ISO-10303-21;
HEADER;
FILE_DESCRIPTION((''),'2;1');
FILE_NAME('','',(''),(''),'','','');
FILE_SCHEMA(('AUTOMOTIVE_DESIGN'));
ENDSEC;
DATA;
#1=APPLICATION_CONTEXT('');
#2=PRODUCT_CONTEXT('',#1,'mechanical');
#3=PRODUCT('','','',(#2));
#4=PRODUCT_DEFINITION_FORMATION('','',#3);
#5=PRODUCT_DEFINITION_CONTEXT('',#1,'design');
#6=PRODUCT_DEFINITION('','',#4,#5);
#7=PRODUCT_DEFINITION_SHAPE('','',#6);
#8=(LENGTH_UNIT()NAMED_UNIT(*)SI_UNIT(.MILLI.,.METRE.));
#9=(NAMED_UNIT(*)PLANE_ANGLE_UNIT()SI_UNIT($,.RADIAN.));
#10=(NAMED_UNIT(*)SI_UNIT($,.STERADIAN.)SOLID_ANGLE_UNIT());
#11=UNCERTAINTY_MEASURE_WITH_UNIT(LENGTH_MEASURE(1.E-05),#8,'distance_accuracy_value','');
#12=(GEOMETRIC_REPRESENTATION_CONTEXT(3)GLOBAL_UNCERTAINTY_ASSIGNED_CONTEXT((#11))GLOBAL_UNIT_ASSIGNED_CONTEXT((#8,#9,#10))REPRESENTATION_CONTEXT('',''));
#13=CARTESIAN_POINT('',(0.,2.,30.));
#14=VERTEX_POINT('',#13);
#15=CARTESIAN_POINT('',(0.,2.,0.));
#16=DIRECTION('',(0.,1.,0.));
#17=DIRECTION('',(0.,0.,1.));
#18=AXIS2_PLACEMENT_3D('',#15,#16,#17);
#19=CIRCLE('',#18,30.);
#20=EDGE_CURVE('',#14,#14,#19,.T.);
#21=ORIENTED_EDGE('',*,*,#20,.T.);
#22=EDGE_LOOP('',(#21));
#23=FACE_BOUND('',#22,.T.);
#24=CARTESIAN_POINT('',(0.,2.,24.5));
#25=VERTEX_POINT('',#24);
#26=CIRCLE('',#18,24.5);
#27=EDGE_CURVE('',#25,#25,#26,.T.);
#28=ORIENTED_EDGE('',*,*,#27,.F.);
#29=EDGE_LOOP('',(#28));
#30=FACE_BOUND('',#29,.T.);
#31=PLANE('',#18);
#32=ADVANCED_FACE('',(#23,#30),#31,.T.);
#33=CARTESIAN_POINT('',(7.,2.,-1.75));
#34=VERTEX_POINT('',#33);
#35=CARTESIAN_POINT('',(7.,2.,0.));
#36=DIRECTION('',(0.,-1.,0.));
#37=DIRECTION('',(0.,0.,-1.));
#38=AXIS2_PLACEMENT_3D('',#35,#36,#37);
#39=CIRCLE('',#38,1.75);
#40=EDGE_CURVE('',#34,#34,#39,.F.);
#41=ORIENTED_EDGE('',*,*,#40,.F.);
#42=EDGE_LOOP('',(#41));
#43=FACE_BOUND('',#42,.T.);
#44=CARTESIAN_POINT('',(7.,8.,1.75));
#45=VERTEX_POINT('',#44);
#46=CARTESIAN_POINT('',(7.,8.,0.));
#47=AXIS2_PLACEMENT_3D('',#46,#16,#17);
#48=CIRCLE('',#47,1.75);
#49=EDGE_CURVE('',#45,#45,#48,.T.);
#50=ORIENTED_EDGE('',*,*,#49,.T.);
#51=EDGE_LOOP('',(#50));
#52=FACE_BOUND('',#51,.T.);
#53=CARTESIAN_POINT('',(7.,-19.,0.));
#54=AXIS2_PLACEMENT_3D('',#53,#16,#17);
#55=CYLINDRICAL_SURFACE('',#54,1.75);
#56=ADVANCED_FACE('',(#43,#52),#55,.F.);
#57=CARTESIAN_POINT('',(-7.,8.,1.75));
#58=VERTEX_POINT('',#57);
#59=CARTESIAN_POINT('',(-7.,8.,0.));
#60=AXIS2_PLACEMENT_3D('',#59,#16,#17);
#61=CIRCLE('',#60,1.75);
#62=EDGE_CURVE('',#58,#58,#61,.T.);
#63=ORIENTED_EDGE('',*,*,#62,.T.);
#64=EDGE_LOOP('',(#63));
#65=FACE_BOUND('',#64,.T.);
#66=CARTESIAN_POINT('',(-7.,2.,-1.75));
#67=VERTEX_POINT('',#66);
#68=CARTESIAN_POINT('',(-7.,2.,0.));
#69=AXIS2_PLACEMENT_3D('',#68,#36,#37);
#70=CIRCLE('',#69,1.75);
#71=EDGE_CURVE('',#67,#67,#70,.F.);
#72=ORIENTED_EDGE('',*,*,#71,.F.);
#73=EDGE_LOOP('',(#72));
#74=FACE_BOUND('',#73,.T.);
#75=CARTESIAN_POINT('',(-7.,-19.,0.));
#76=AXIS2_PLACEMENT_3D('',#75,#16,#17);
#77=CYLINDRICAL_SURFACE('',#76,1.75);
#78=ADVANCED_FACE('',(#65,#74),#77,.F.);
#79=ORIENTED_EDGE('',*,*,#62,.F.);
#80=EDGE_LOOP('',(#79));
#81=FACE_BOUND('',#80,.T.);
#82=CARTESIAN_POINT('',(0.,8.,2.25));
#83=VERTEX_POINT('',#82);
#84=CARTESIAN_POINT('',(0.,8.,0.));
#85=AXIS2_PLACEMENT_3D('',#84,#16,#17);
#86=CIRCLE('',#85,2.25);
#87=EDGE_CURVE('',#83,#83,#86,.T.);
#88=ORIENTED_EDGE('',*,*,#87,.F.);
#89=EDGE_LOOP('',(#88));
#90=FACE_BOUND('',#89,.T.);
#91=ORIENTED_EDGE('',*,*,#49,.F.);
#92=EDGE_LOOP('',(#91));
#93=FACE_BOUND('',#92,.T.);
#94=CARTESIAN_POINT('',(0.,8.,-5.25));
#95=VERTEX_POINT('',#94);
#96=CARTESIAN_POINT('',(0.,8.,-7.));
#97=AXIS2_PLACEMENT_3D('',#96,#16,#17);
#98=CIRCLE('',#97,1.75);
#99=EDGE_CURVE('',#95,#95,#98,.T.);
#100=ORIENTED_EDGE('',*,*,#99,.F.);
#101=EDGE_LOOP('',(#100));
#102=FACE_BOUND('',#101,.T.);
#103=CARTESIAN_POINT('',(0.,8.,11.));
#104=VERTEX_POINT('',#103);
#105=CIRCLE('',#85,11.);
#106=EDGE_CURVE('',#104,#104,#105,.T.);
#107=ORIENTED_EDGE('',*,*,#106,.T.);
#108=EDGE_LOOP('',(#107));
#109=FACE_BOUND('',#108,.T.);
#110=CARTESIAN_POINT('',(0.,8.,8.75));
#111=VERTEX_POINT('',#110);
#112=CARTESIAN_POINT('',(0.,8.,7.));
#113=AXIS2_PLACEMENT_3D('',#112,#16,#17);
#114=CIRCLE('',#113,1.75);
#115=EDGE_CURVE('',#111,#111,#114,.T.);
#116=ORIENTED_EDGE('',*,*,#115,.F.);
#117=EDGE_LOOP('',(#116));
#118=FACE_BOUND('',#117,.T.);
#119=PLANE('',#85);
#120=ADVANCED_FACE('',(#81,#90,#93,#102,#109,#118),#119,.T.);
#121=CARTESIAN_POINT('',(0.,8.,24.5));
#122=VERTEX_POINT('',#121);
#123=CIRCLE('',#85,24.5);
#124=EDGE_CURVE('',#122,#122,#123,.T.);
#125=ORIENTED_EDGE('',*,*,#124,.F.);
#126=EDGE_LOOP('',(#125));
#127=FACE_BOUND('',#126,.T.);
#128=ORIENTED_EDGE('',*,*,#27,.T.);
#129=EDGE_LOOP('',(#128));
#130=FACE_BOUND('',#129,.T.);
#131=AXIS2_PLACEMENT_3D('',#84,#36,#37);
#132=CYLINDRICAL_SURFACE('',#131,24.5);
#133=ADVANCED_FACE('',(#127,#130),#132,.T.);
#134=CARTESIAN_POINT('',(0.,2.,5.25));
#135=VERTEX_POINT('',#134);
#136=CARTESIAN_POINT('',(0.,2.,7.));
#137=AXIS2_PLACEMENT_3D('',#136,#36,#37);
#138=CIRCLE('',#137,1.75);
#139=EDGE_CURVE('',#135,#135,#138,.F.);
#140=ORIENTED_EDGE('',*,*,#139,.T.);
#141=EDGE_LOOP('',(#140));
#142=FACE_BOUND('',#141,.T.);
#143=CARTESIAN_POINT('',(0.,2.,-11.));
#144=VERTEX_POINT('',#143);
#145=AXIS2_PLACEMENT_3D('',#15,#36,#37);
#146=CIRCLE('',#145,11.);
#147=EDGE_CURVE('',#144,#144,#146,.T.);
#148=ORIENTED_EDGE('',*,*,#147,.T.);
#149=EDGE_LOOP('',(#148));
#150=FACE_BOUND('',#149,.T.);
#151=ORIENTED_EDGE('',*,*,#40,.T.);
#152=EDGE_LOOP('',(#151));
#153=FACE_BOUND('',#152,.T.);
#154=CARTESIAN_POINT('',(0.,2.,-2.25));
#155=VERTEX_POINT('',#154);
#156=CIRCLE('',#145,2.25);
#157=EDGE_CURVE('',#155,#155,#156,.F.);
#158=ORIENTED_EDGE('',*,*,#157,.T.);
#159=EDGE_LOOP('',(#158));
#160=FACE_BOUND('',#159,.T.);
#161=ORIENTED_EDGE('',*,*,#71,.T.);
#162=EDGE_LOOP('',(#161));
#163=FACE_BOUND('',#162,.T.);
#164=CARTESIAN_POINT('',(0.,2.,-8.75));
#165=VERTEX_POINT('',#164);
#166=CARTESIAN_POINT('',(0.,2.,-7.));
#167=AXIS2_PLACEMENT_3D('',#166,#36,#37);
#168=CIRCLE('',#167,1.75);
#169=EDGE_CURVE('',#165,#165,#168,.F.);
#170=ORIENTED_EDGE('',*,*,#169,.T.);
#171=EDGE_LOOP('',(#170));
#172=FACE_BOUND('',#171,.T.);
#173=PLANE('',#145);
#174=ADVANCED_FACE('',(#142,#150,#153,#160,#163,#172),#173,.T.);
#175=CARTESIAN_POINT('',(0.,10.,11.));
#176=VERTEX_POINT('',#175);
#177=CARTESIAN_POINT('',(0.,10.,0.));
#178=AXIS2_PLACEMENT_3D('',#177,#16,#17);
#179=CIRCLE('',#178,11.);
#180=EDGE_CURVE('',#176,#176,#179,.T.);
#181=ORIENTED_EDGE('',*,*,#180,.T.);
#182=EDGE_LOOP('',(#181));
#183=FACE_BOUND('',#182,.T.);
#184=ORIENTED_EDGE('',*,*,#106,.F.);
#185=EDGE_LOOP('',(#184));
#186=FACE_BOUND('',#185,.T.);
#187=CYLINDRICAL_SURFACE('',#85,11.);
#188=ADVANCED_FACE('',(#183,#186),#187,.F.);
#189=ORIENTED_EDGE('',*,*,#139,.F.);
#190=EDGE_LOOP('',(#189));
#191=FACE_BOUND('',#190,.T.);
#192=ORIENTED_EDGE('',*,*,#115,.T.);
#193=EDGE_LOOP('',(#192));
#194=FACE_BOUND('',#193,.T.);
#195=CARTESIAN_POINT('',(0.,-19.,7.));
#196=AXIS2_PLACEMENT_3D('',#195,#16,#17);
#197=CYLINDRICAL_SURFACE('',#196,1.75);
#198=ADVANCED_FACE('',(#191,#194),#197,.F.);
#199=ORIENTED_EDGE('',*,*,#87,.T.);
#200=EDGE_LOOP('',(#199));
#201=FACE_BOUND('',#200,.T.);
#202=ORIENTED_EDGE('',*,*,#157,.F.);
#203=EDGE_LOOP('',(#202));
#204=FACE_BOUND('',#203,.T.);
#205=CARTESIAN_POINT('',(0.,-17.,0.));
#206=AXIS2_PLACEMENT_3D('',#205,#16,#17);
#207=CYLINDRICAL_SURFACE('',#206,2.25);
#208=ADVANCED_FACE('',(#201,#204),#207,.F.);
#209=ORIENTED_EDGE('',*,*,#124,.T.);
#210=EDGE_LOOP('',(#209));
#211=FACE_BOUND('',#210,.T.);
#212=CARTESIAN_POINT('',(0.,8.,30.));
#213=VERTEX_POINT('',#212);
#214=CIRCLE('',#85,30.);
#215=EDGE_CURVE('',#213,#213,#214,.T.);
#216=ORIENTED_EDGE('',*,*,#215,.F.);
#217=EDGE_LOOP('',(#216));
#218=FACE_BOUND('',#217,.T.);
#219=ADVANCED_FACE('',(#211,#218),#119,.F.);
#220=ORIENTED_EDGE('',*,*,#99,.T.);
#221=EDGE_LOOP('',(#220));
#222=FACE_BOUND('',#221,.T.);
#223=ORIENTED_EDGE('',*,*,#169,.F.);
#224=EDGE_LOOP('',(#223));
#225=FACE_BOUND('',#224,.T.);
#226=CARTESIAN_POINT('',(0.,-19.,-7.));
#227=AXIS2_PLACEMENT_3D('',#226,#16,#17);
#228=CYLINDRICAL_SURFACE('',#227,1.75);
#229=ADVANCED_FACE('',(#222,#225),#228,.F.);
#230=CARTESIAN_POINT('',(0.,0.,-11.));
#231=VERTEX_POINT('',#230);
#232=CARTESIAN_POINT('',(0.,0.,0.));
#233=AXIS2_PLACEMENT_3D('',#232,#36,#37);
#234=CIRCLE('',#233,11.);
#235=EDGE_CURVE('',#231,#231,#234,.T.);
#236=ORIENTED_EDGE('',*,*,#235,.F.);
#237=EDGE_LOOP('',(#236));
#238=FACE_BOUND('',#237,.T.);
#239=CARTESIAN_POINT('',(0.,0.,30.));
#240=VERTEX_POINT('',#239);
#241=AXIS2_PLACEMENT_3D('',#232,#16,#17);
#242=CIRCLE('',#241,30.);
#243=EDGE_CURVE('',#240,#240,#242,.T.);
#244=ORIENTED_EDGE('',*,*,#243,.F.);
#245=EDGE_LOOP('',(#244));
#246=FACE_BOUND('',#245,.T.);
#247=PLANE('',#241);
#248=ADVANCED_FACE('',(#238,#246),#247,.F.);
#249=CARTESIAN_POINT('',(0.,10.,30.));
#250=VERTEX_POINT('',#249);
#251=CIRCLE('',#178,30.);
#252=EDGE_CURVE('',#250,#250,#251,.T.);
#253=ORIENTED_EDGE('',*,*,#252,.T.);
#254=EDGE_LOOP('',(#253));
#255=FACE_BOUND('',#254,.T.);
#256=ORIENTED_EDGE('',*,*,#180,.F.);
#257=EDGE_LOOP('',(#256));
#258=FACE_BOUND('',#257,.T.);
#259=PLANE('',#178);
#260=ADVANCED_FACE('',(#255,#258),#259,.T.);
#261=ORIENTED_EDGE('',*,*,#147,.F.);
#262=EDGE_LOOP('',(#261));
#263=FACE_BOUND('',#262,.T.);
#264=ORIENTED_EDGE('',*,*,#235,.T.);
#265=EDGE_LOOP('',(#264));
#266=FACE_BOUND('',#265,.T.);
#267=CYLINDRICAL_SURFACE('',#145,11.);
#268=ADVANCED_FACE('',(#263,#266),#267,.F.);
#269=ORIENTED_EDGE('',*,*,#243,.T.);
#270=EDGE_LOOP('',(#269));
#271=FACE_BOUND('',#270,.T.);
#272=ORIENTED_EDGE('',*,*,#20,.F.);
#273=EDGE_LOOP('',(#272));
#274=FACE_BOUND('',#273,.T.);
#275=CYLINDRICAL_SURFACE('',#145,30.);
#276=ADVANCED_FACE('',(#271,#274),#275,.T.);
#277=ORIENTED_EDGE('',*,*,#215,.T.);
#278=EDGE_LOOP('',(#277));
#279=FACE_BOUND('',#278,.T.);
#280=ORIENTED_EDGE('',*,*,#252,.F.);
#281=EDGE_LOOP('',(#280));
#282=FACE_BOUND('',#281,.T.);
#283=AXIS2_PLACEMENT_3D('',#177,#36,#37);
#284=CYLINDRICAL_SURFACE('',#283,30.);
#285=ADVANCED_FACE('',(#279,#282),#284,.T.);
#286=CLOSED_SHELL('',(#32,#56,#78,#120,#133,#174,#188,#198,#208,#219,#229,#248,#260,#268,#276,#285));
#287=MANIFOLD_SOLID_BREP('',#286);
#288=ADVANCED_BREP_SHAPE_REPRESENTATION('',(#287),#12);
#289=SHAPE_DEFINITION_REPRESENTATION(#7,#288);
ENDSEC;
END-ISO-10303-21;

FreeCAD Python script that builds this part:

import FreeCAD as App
import Part
import Sketcher

V = App.Vector

doc = App.newDocument("Part")
params = doc.addObject("Spreadsheet::Sheet", "Params")
for row, (alias, value) in enumerate([
    ("sketch1_diameter", "60 mm"),
    ("pad1_length", "2 mm"),
    ("sketch2_diameter", "49 mm"),
    ("pad2_length", "6 mm"),
    ("sketch3_diameter", "60 mm"),
    ("pad3_length", "2 mm"),
    ("sketch4_diameter", "22 mm"),
    ("sketch4_diameter2", "4.5 mm"),
    ("pocket1_length", "2 mm"),
    ("sketch5_diameter", "4.5 mm"),
    ("pocket2_length", "27 mm"),
    ("sketch6_diameter", "3.5 mm"),
    ("pocket3_length", "27 mm"),
    ("sketch7_diameter", "22 mm"),
    ("pocket4_length", "2 mm"),
], start=1):
    params.set(f"A{row}", alias)
    params.set(f"B{row}", "=" + value)
    params.setAlias(f"B{row}", alias)

body = doc.addObject("PartDesign::Body", "Body")

sketch1 = doc.addObject("Sketcher::SketchObject", "Sketch")
body.addObject(sketch1)
sketch1.AttachmentSupport = (doc.XZ_Plane, [""])
sketch1.MapMode = "FlatFace"
sketch1.addGeometry(Part.Circle(V(0, 0, 0), V(0, 0, 1), 30), False)
sketch1.addConstraint([
    Sketcher.Constraint("Coincident", 0, 3, -1, 1),
    Sketcher.Constraint("Diameter", 0, 60.0),
])
sketch1.setExpression("Constraints[1]", "Params.sketch1_diameter")
pad1 = doc.addObject("PartDesign::Pad", "Pad")
body.addObject(pad1)
pad1.Profile = sketch1
pad1.setExpression("Length", "Params.pad1_length")
pad1.Reversed = True

sketch2 = doc.addObject("Sketcher::SketchObject", "Sketch001")
body.addObject(sketch2)
sketch2.AttachmentSupport = (doc.XZ_Plane, [""])
sketch2.MapMode = "FlatFace"
sketch2.AttachmentOffset = App.Placement(V(0, 0, -2), App.Rotation())
sketch2.addGeometry(Part.Circle(V(0, 0, 0), V(0, 0, 1), 24), False)
sketch2.addConstraint([
    Sketcher.Constraint("Coincident", 0, 3, -1, 1),
    Sketcher.Constraint("Diameter", 0, 49.0),
])
sketch2.setExpression("Constraints[1]", "Params.sketch2_diameter")
pad2 = doc.addObject("PartDesign::Pad", "Pad001")
body.addObject(pad2)
pad2.Profile = sketch2
pad2.setExpression("Length", "Params.pad2_length")
pad2.Reversed = True

sketch3 = doc.addObject("Sketcher::SketchObject", "Sketch002")
body.addObject(sketch3)
sketch3.AttachmentSupport = (doc.XZ_Plane, [""])
sketch3.MapMode = "FlatFace"
sketch3.AttachmentOffset = App.Placement(V(0, 0, -8), App.Rotation())
sketch3.addGeometry(Part.Circle(V(0, 0, 0), V(0, 0, 1), 30), False)
sketch3.addConstraint([
    Sketcher.Constraint("Coincident", 0, 3, -1, 1),
    Sketcher.Constraint("Diameter", 0, 60.0),
])
sketch3.setExpression("Constraints[1]", "Params.sketch3_diameter")
pad3 = doc.addObject("PartDesign::Pad", "Pad002")
body.addObject(pad3)
pad3.Profile = sketch3
pad3.setExpression("Length", "Params.pad3_length")
pad3.Reversed = True

sketch4 = doc.addObject("Sketcher::SketchObject", "Sketch003")
body.addObject(sketch4)
sketch4.AttachmentSupport = (doc.XZ_Plane, [""])
sketch4.MapMode = "FlatFace"
sketch4.AttachmentOffset = App.Placement(V(0, 0, -10), App.Rotation())
sketch4.addGeometry([
    Part.Circle(V(0, 0, 0), V(0, 0, 1), 11),
    Part.Circle(V(0, 0, 0), V(0, 0, 1), 2.2),
], False)
sketch4.addConstraint([
    Sketcher.Constraint("Coincident", 0, 3, -1, 1),
    Sketcher.Constraint("Coincident", 1, 3, -1, 1),
    Sketcher.Constraint("Diameter", 0, 22.0),
    Sketcher.Constraint("Diameter", 1, 4.5),
])
sketch4.setExpression("Constraints[2]", "Params.sketch4_diameter")
sketch4.setExpression("Constraints[3]", "Params.sketch4_diameter2")
pocket1 = doc.addObject("PartDesign::Pocket", "Pocket")
body.addObject(pocket1)
pocket1.Profile = sketch4
pocket1.setExpression("Length", "Params.pocket1_length")
pocket1.Reversed = True

sketch5 = doc.addObject("Sketcher::SketchObject", "Sketch004")
body.addObject(sketch5)
sketch5.AttachmentSupport = (doc.XZ_Plane, [""])
sketch5.MapMode = "FlatFace"
sketch5.AttachmentOffset = App.Placement(V(0, 0, -10), App.Rotation())
sketch5.addGeometry(Part.Circle(V(0, 0, 0), V(0, 0, 1), 2.2), False)
sketch5.addConstraint([
    Sketcher.Constraint("Coincident", 0, 3, -1, 1),
    Sketcher.Constraint("Diameter", 0, 4.5),
])
sketch5.setExpression("Constraints[1]", "Params.sketch5_diameter")
pocket2 = doc.addObject("PartDesign::Pocket", "Pocket001")
body.addObject(pocket2)
pocket2.Profile = sketch5
pocket2.setExpression("Length", "Params.pocket2_length")
pocket2.Reversed = True

sketch6 = doc.addObject("Sketcher::SketchObject", "Sketch005")
body.addObject(sketch6)
sketch6.AttachmentSupport = (doc.XZ_Plane, [""])
sketch6.MapMode = "FlatFace"
sketch6.AttachmentOffset = App.Placement(V(0, 0, -8), App.Rotation())
sketch6.addGeometry([
    Part.Circle(V(0, -7, 0), V(0, 0, 1), 1.8),
    Part.Circle(V(7, 0, 0), V(0, 0, 1), 1.8),
    Part.Circle(V(0, 7, 0), V(0, 0, 1), 1.8),
    Part.Circle(V(-7, 0, 0), V(0, 0, 1), 1.8),
], False)
sketch6.addConstraint([
    Sketcher.Constraint("Equal", 0, 1),
    Sketcher.Constraint("Equal", 1, 2),
    Sketcher.Constraint("Equal", 2, 3),
    Sketcher.Constraint("Symmetric", 0, 3, 2, 3, -1, 1),
    Sketcher.Constraint("Symmetric", 1, 3, 3, 3, -1, 1),
    Sketcher.Constraint("PointOnObject", 0, 3, -2),
    Sketcher.Constraint("PointOnObject", 1, 3, -1),
    Sketcher.Constraint("Diameter", 0, 3.5),
    Sketcher.Constraint("DistanceY", 0, 3, -1, 1, 7.0),
    Sketcher.Constraint("DistanceX", -1, 1, 1, 3, 7.0),
])
sketch6.setExpression("Constraints[7]", "Params.sketch6_diameter")
pocket3 = doc.addObject("PartDesign::Pocket", "Pocket002")
body.addObject(pocket3)
pocket3.Profile = sketch6
pocket3.setExpression("Length", "Params.pocket3_length")
pocket3.Reversed = True

sketch7 = doc.addObject("Sketcher::SketchObject", "Sketch006")
body.addObject(sketch7)
sketch7.AttachmentSupport = (doc.XZ_Plane, [""])
sketch7.MapMode = "FlatFace"
sketch7.addGeometry(Part.Circle(V(0, 0, 0), V(0, 0, 1), 11), False)
sketch7.addConstraint([
    Sketcher.Constraint("Coincident", 0, 3, -1, 1),
    Sketcher.Constraint("Diameter", 0, 22.0),
])
sketch7.setExpression("Constraints[1]", "Params.sketch7_diameter")
pocket4 = doc.addObject("PartDesign::Pocket", "Pocket003")
body.addObject(pocket4)
pocket4.Profile = sketch7
pocket4.setExpression("Length", "Params.pocket4_length")

doc.recompute()
